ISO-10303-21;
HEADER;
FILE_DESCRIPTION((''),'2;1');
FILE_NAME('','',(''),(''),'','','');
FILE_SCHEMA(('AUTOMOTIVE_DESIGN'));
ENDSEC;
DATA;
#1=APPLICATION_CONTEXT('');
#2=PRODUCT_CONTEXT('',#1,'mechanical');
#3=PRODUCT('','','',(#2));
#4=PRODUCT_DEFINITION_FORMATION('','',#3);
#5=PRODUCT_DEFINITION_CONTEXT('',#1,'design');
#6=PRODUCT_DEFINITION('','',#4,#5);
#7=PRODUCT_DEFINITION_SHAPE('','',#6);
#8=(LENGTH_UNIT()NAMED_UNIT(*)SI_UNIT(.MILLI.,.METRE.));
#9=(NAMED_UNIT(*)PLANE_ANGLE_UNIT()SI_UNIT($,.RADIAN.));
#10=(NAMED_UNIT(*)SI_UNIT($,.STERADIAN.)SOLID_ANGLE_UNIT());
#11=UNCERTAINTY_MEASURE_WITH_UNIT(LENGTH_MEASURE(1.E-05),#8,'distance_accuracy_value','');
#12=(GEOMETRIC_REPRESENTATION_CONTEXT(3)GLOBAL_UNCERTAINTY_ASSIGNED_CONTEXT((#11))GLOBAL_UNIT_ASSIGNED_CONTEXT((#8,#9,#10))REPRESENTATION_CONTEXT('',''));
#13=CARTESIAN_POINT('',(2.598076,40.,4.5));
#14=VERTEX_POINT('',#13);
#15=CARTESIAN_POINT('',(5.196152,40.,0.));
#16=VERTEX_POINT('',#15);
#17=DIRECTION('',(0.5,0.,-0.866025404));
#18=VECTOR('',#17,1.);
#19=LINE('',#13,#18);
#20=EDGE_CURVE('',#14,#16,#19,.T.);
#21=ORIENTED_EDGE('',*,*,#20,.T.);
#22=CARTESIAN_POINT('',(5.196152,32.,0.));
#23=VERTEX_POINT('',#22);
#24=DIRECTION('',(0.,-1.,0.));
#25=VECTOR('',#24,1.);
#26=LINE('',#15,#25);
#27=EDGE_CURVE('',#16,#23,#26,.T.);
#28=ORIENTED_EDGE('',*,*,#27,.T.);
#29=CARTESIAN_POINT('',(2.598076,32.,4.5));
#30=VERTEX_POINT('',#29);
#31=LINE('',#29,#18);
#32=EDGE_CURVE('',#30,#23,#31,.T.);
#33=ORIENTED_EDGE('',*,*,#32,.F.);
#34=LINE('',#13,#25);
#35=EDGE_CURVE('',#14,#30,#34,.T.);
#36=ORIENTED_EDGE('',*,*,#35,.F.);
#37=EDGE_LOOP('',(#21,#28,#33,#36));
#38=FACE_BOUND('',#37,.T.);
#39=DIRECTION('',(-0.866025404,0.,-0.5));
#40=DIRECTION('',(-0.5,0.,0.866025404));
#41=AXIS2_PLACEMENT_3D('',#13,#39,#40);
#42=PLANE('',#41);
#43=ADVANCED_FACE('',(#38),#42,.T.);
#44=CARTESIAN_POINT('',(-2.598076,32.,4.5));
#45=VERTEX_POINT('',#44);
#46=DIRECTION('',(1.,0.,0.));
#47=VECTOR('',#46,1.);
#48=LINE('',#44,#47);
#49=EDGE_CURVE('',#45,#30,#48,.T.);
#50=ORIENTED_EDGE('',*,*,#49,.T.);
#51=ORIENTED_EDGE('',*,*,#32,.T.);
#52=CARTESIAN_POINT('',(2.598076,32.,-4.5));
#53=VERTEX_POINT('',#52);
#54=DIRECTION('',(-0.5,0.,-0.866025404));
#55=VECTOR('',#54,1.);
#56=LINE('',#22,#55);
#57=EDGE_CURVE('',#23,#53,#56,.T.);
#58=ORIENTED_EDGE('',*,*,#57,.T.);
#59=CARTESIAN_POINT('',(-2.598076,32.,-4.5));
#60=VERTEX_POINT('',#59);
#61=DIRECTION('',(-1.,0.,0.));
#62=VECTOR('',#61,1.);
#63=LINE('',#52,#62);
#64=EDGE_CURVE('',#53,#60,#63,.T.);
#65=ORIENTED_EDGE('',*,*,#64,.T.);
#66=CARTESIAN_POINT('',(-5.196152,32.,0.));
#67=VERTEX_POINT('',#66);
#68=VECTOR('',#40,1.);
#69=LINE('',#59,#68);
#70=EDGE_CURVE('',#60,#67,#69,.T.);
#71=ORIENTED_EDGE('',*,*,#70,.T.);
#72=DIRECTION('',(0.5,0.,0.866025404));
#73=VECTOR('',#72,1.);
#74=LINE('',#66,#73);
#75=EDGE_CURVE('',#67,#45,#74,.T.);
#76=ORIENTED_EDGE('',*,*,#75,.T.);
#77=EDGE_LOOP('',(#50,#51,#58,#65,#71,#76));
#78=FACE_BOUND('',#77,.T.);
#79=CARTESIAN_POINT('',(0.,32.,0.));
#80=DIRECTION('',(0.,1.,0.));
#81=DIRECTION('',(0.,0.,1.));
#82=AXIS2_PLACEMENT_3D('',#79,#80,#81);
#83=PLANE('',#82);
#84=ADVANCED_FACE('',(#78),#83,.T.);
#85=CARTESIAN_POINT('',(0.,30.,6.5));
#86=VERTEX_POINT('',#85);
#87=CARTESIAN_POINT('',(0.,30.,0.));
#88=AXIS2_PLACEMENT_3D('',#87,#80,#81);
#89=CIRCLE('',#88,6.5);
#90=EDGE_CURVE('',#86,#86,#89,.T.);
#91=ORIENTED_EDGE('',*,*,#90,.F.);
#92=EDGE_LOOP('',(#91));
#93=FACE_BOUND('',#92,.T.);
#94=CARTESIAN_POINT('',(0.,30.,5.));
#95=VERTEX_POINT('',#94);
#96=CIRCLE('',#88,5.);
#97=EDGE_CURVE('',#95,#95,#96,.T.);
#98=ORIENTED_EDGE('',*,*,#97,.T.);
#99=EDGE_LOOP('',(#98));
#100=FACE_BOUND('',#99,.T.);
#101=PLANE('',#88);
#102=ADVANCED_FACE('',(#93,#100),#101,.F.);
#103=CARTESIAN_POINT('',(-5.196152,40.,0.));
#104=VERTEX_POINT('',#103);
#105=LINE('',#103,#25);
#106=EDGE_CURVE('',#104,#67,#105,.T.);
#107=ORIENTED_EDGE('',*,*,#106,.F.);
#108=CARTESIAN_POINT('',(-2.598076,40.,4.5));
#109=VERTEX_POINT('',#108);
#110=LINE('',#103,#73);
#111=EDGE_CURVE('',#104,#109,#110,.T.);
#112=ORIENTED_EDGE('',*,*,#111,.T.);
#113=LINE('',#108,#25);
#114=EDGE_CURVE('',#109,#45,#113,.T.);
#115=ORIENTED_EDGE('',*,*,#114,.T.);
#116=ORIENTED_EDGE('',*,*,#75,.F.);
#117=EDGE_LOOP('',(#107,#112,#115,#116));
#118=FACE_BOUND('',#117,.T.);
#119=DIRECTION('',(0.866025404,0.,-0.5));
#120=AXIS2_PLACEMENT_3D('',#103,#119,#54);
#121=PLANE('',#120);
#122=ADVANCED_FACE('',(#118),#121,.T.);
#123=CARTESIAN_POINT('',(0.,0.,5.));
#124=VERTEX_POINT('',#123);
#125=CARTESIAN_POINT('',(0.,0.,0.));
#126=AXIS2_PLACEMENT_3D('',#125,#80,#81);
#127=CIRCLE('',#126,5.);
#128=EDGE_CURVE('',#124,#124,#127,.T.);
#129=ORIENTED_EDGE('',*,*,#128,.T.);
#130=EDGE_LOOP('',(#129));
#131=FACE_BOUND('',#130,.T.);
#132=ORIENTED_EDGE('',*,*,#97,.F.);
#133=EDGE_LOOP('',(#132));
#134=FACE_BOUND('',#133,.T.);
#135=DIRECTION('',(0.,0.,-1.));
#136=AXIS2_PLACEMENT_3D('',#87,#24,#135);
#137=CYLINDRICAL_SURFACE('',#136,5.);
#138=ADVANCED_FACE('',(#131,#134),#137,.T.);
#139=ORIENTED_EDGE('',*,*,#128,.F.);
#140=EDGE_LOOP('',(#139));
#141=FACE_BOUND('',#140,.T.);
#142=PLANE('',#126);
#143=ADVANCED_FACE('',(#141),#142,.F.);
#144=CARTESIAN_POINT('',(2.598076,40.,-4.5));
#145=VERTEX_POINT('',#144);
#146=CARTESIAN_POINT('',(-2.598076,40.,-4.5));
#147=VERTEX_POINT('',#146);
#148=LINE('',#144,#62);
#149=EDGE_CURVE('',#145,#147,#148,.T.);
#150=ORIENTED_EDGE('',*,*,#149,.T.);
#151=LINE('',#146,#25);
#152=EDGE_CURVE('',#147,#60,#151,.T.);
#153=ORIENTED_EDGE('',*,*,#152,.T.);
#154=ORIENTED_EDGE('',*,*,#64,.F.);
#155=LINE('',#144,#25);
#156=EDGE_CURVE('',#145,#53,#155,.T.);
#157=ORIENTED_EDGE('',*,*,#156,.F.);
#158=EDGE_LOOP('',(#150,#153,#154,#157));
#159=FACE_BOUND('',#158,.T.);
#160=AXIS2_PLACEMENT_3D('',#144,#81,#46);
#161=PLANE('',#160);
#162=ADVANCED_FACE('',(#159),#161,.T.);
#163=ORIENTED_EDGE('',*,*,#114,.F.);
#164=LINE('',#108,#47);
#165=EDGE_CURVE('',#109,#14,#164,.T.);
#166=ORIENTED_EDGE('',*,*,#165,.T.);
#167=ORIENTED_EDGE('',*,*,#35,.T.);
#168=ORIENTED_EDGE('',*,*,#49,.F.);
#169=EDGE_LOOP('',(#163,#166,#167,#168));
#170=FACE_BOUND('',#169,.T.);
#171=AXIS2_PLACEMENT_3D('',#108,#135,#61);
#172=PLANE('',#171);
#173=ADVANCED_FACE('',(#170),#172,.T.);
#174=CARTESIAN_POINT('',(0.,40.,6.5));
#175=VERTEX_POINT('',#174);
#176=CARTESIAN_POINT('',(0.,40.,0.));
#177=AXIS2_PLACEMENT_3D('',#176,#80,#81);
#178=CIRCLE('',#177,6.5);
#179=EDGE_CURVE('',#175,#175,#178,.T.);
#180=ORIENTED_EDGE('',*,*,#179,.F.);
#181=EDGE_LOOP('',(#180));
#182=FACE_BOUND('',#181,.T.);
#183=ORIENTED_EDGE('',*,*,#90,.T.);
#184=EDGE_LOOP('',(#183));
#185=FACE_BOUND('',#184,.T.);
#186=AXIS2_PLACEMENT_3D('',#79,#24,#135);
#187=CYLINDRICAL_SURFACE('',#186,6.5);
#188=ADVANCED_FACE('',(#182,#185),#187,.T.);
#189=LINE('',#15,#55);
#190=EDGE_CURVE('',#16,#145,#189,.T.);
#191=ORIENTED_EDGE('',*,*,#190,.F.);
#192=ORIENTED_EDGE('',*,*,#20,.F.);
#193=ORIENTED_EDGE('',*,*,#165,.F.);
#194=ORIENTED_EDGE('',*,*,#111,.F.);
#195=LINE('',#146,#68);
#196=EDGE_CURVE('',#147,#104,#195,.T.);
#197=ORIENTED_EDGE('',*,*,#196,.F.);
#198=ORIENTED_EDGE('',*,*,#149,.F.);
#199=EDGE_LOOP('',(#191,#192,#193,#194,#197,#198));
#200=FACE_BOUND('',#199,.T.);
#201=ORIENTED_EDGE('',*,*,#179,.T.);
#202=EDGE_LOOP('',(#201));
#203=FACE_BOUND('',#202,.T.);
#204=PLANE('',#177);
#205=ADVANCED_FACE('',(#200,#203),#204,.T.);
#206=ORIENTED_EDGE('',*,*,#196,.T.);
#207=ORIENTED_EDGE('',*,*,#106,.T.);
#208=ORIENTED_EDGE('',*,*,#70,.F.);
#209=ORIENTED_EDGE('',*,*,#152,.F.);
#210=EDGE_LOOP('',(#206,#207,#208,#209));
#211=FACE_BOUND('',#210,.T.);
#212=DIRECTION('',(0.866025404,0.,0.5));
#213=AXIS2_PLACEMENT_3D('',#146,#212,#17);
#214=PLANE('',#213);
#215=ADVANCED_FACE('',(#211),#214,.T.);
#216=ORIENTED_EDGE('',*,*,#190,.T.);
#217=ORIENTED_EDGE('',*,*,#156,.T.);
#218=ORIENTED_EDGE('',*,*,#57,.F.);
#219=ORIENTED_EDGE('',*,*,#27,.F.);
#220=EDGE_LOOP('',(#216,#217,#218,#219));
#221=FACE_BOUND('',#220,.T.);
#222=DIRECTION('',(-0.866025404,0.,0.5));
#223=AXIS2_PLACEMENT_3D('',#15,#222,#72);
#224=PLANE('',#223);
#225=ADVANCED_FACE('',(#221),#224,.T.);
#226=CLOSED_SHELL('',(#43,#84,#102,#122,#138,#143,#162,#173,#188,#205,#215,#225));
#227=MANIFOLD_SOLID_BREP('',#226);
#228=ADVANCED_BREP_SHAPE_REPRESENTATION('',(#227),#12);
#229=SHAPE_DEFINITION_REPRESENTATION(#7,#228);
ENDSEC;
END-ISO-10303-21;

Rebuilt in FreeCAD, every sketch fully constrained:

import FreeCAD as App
import Part
import Sketcher
from FreeCAD import Vector
Q = App.Units.Quantity


def add_polygon(sketch, points):
    """Adds a closed chain of lines whose ends are joined by coincident constraints."""
    first, n = sketch.GeometryCount, len(points)
    for a, b in zip(points, points[1:] + points[:1]):
        sketch.addGeometry(Part.LineSegment(App.Vector(*a, 0), App.Vector(*b, 0)), False)
    for i in range(n):
        sketch.addConstraint(Sketcher.Constraint("Coincident", first + i, 2, first + (i + 1) % n, 1))

doc = App.newDocument("Part")
body = doc.addObject("PartDesign::Body", "Body")

sketch1 = body.newObject("Sketcher::SketchObject", "Sketch")
sketch1.AttachmentSupport = (doc.getObject("XZ_Plane"), [""])
sketch1.MapMode = "FlatFace"
sketch1.addGeometry(Part.Circle(Vector(0, 0, 0), Vector(0, 0, 1), 5), False)
sketch1.addConstraint(Sketcher.Constraint("Coincident", 0, 3, -1, 1))
sketch1.addConstraint(Sketcher.Constraint("Diameter", 0, 10.0))
pad1 = body.newObject("PartDesign::Pad", "Pad")
pad1.Profile = sketch1
pad1.Length = 30
pad1.Reversed = True

sketch2 = body.newObject("Sketcher::SketchObject", "Sketch001")
sketch2.AttachmentSupport = (doc.getObject("XZ_Plane"), [""])
sketch2.MapMode = "FlatFace"
sketch2.AttachmentOffset = App.Placement(Vector(0, 0, -30), App.Rotation())
sketch2.addGeometry(Part.Circle(Vector(0, 0, 0), Vector(0, 0, 1), 6), False)
sketch2.addConstraint(Sketcher.Constraint("Coincident", 0, 3, -1, 1))
sketch2.addConstraint(Sketcher.Constraint("Diameter", 0, 13.0))
pad2 = body.newObject("PartDesign::Pad", "Pad001")
pad2.Profile = sketch2
pad2.Length = 2
pad2.Reversed = True

sketch3 = body.newObject("Sketcher::SketchObject", "Sketch002")
sketch3.AttachmentSupport = (doc.getObject("XZ_Plane"), [""])
sketch3.MapMode = "FlatFace"
sketch3.AttachmentOffset = App.Placement(Vector(0, 0, -32), App.Rotation())
sketch3.addGeometry(Part.Circle(Vector(0, 0, 0), Vector(0, 0, 1), 6), False)
add_polygon(sketch3, [(3, -4), (5, 0), (3, 4), (-3, 4), (-5, 0), (-3, -4)])
sketch3.addConstraint(Sketcher.Constraint("Horizontal", 3))
sketch3.addConstraint(Sketcher.Constraint("Horizontal", 6))
sketch3.addConstraint(Sketcher.Constraint("Coincident", 0, 3, -1, 1))
sketch3.addConstraint(Sketcher.Constraint("Symmetric", 1, 2, 4, 2, -1, 1))
sketch3.addConstraint(Sketcher.Constraint("Symmetric", 2, 2, 5, 2, -1, 1))
sketch3.addConstraint(Sketcher.Constraint("PointOnObject", 1, 2, -1))
sketch3.addConstraint(Sketcher.Constraint("Parallel", 1, 4))
sketch3.addConstraint(Sketcher.Constraint("Vertical", 3, 2, 5, 2))
sketch3.addConstraint(Sketcher.Constraint("Diameter", 0, 13.0))
sketch3.addConstraint(Sketcher.Constraint("Angle", 1, Q("60 deg")))
sketch3.addConstraint(Sketcher.Constraint("DistanceY", 5, 2, 3, 2, 9.0))
sketch3.addConstraint(Sketcher.Constraint("DistanceX", 3, 2, 3, 1, 5.196152))
pad3 = body.newObject("PartDesign::Pad", "Pad002")
pad3.Profile = sketch3
pad3.Length = 8
pad3.Reversed = True

doc.recompute()
